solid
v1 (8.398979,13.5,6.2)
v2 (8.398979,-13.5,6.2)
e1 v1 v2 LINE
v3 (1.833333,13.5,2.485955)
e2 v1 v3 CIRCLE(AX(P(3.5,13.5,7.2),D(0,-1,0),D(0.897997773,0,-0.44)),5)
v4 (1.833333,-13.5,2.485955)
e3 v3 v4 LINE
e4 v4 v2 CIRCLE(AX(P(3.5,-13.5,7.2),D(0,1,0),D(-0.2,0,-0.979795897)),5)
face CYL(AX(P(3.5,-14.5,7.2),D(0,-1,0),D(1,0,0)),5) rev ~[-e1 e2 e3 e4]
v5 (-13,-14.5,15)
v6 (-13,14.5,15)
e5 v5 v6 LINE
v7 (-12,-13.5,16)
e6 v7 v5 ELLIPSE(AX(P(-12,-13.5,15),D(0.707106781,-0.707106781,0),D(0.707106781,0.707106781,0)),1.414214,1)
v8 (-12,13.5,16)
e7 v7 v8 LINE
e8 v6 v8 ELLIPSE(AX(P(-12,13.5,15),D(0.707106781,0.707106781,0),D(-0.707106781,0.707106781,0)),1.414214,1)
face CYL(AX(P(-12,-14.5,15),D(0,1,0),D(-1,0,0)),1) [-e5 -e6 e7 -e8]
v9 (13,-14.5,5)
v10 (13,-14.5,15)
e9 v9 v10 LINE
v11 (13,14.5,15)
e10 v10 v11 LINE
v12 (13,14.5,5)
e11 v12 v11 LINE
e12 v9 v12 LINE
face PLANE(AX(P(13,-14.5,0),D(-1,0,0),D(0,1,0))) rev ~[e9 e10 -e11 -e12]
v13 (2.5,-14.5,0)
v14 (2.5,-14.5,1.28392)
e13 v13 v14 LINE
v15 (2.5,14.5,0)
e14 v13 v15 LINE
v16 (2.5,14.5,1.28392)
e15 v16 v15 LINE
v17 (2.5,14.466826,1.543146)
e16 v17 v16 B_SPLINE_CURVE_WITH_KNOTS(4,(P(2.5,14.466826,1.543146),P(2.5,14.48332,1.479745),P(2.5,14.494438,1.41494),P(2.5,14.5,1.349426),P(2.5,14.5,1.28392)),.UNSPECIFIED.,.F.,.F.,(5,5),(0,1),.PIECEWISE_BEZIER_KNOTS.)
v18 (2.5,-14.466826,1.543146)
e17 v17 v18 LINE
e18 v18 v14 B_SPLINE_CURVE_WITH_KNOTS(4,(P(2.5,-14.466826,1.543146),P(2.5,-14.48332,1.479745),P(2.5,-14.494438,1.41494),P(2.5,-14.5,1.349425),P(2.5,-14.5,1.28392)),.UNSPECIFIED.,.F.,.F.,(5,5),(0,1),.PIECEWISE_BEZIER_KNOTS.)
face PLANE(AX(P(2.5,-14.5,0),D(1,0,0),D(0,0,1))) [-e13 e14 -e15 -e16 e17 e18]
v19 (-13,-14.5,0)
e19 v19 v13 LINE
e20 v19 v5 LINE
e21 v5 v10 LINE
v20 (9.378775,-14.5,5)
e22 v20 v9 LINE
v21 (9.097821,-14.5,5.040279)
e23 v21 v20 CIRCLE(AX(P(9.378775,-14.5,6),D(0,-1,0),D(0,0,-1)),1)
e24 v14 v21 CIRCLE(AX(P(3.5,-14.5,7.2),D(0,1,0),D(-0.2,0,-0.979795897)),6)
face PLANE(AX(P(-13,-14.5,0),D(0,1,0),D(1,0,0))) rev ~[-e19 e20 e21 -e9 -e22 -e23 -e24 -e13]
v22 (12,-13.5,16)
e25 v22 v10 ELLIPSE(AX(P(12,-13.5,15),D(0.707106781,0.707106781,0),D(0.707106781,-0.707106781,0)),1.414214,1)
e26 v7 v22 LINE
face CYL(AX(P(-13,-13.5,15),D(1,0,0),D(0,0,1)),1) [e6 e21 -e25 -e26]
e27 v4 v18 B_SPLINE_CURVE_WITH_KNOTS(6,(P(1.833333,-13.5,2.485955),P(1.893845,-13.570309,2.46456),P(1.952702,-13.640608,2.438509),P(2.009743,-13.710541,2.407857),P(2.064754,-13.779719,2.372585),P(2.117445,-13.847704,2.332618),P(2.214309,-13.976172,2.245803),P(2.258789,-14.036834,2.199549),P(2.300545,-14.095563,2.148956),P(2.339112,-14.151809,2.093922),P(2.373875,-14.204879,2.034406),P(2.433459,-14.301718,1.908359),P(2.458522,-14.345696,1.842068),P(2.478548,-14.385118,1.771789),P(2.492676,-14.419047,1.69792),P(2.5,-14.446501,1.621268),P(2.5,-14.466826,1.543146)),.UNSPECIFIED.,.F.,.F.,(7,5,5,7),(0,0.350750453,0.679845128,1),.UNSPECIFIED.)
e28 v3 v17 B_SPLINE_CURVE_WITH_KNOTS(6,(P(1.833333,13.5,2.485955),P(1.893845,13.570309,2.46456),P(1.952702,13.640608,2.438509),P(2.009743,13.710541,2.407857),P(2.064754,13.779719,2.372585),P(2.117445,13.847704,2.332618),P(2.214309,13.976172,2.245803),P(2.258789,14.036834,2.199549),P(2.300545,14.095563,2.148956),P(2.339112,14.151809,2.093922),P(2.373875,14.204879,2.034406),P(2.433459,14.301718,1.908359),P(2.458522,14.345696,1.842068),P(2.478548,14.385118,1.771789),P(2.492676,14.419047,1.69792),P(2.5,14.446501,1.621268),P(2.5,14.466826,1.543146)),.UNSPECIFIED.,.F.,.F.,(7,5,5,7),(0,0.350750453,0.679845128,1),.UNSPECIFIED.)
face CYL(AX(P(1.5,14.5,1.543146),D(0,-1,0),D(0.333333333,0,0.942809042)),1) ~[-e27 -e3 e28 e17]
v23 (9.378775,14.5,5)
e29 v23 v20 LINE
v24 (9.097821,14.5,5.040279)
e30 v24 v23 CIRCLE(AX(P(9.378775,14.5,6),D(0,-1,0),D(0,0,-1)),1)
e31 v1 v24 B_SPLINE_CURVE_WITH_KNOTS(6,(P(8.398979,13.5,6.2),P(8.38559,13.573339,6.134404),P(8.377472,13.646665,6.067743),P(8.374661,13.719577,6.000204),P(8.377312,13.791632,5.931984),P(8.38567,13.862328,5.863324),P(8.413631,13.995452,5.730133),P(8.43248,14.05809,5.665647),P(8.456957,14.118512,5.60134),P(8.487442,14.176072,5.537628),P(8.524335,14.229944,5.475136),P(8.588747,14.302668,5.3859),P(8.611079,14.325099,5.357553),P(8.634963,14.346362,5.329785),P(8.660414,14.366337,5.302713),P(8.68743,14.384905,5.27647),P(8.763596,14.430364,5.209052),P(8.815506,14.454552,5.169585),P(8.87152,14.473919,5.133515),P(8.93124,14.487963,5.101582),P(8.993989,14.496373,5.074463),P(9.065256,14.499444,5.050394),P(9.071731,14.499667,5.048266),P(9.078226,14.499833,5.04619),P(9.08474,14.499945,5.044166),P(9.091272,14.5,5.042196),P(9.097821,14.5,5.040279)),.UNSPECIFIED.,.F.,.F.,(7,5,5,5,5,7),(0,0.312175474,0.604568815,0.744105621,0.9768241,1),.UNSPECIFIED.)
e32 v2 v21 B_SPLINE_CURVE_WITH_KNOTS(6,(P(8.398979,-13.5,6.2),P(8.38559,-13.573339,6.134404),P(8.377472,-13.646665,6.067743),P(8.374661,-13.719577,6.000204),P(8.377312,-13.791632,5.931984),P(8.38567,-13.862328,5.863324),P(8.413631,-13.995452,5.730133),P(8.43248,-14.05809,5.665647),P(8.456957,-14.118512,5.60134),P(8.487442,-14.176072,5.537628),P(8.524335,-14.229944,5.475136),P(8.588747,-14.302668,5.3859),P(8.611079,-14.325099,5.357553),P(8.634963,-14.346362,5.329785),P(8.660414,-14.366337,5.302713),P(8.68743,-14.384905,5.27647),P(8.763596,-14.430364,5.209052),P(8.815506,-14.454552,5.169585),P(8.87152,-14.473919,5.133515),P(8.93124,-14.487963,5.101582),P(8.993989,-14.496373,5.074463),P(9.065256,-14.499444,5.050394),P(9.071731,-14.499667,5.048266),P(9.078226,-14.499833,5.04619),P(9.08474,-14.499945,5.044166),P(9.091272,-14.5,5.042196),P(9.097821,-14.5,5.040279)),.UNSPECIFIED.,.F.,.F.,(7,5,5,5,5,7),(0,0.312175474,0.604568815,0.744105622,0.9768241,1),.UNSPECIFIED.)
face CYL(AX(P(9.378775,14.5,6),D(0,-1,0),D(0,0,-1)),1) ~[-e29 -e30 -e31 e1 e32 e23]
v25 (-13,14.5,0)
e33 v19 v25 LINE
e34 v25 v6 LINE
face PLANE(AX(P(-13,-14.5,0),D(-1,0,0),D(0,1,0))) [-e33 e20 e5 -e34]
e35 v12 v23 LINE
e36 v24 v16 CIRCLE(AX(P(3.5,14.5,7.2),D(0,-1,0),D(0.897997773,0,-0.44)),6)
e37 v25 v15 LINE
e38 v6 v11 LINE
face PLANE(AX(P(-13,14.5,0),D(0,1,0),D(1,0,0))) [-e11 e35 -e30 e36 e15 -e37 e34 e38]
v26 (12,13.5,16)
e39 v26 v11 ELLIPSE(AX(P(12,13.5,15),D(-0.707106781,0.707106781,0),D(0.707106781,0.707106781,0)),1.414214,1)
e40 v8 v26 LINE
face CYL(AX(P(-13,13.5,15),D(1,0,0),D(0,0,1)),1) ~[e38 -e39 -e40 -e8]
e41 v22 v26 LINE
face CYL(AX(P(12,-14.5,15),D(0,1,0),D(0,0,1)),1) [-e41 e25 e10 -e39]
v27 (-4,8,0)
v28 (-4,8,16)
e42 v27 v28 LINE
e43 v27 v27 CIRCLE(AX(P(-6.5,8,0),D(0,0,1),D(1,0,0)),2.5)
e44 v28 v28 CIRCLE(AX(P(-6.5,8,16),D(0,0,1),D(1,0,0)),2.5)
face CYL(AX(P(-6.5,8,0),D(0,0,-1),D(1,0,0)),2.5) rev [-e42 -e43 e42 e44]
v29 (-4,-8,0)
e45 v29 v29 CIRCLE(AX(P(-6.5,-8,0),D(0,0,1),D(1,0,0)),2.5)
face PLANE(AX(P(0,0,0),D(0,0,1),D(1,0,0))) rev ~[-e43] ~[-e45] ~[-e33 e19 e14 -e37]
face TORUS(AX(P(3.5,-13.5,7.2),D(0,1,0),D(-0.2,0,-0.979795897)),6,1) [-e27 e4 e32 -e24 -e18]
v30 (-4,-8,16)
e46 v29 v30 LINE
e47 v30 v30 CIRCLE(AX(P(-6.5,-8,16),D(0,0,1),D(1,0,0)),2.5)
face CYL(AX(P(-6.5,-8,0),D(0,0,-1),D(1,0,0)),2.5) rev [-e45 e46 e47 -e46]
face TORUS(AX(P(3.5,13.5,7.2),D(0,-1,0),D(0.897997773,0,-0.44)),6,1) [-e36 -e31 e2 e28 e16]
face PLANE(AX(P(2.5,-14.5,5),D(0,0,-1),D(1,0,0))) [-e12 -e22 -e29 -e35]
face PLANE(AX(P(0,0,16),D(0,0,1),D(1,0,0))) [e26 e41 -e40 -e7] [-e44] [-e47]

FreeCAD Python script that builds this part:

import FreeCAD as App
import Part
import Sketcher


def edges_at(feature, points):
    """Names of the edges that pass closest to the given points."""
    edges = feature.Shape.Edges
    near = lambda p: min(range(len(edges)), key=lambda i: edges[i].distToShape(Part.Vertex(*p))[0])
    return sorted({f"Edge{near(p) + 1}" for p in points})

doc = App.newDocument("Part")
params = doc.addObject("Spreadsheet::Sheet", "Params")
for row, (alias, value) in enumerate([
    ("sketch1_diameter", "5 mm"),
    ("sketch1_width", "26 mm"),
    ("sketch1_height", "29 mm"),
    ("pad1_length", "16 mm"),
    ("sketch2_diameter", "10 mm"),
    ("pocket1_length", "60 mm"),
    ("sketch3_height", "5 mm"),
    ("sketch3_width", "10.5 mm"),
    ("pocket2_length", "60 mm"),
    ("fillet_radius", "1 mm"),
], start=1):
    params.set(f"A{row}", alias)
    params.set(f"B{row}", "=" + value)
    params.setAlias(f"B{row}", alias)

body = doc.addObject("PartDesign::Body", "Body")

# Sketch on XY plane
sketch1 = body.newObject("Sketcher::SketchObject", "Sketch")
sketch1.AttachmentSupport = (doc.getObject("XY_Plane"), [""])
sketch1.MapMode = "FlatFace"
sketch1.addGeometry([
    Part.LineSegment(App.Vector(-13, 14.5, 0), App.Vector(-13, -14.5, 0)),  # 0
    Part.LineSegment(App.Vector(-13, -14.5, 0), App.Vector(13, -14.5, 0)),  # 1
    Part.LineSegment(App.Vector(13, -14.5, 0), App.Vector(13, 14.5, 0)),  # 2
    Part.LineSegment(App.Vector(13, 14.5, 0), App.Vector(-13, 14.5, 0)),  # 3
    Part.Circle(App.Vector(-6.5, -8, 0), App.Vector(0, 0, 1), 2.5),  # 4
    Part.Circle(App.Vector(-6.5, 8, 0), App.Vector(0, 0, 1), 2.5),  # 5
], False)
sketch1.addConstraint([
    Sketcher.Constraint("Coincident", 0, 2, 1, 1),
    Sketcher.Constraint("Coincident", 1, 2, 2, 1),
    Sketcher.Constraint("Coincident", 2, 2, 3, 1),
    Sketcher.Constraint("Coincident", 3, 2, 0, 1),
    Sketcher.Constraint("Vertical", 0),
    Sketcher.Constraint("Horizontal", 1),
    Sketcher.Constraint("Vertical", 2),
    Sketcher.Constraint("Horizontal", 3),
    Sketcher.Constraint("Equal", 4, 5),
    Sketcher.Constraint("Symmetric", 0, 2, 2, 2, -1, 1),
    Sketcher.Constraint("Symmetric", 4, 3, 5, 3, -1),
    Sketcher.Constraint("Diameter", 4, 5.0),
    Sketcher.Constraint("DistanceX", 1, 1, 1, 2, 26.0),
    Sketcher.Constraint("DistanceY", 0, 2, 0, 1, 29.0),
    Sketcher.Constraint("DistanceY", 4, 3, -1, 1, 8.0),
    Sketcher.Constraint("DistanceX", 4, 3, -1, 1, 6.5),
])
sketch1.setExpression("Constraints[11]", "Params.sketch1_diameter")
sketch1.setExpression("Constraints[12]", "Params.sketch1_width")
sketch1.setExpression("Constraints[13]", "Params.sketch1_height")
pad1 = body.newObject("PartDesign::Pad", "Pad")
pad1.Profile = sketch1
pad1.setExpression("Length", "Params.pad1_length")

# Sketch on XZ plane
sketch2 = body.newObject("Sketcher::SketchObject", "Sketch001")
sketch2.AttachmentSupport = (doc.getObject("XZ_Plane"), [""])
sketch2.MapMode = "FlatFace"
sketch2.AttachmentOffset = App.Placement(App.Vector(0, 0, 14.5), App.Rotation())
sketch2.addGeometry(Part.Circle(App.Vector(4, 7, 0), App.Vector(0, 0, 1), 5), False)
sketch2.addConstraint([
    Sketcher.Constraint("Diameter", 0, 10.0),
    Sketcher.Constraint("DistanceX", -1, 1, 0, 3, 3.5),
    Sketcher.Constraint("DistanceY", -1, 1, 0, 3, 7.2),
])
sketch2.setExpression("Constraints[0]", "Params.sketch2_diameter")
pocket1 = body.newObject("PartDesign::Pocket", "Pocket")
pocket1.Profile = sketch2
pocket1.setExpression("Length", "Params.pocket1_length")

# Sketch on XZ plane
sketch3 = body.newObject("Sketcher::SketchObject", "Sketch002")
sketch3.AttachmentSupport = (doc.getObject("XZ_Plane"), [""])
sketch3.MapMode = "FlatFace"
sketch3.AttachmentOffset = App.Placement(App.Vector(0, 0, 14.5), App.Rotation())
sketch3.addGeometry([
    Part.LineSegment(App.Vector(2, 5, 0), App.Vector(2, 0, 0)),
    Part.LineSegment(App.Vector(2, 0, 0), App.Vector(13, 0, 0)),
    Part.LineSegment(App.Vector(13, 0, 0), App.Vector(13, 5, 0)),
    Part.LineSegment(App.Vector(13, 5, 0), App.Vector(2, 5, 0)),
], False)
sketch3.addConstraint([
    Sketcher.Constraint("Coincident", 0, 2, 1, 1),
    Sketcher.Constraint("Coincident", 1, 2, 2, 1),
    Sketcher.Constraint("Coincident", 2, 2, 3, 1),
    Sketcher.Constraint("Coincident", 3, 2, 0, 1),
    Sketcher.Constraint("Vertical", 0),
    Sketcher.Constraint("Horizontal", 1),
    Sketcher.Constraint("Vertical", 2),
    Sketcher.Constraint("Horizontal", 3),
    Sketcher.Constraint("PointOnObject", 0, 2, -1),
    Sketcher.Constraint("DistanceY", 0, 2, 0, 1, 5.0),
    Sketcher.Constraint("DistanceX", 1, 1, 1, 2, 10.5),
    Sketcher.Constraint("DistanceX", -1, 1, 1, 2, 13.0),
])
sketch3.setExpression("Constraints[9]", "Params.sketch3_height")
sketch3.setExpression("Constraints[10]", "Params.sketch3_width")
pocket2 = body.newObject("PartDesign::Pocket", "Pocket001")
pocket2.Profile = sketch3
pocket2.setExpression("Length", "Params.pocket2_length")
doc.recompute()

fillet = body.newObject("PartDesign::Fillet", "Fillet")
fillet.Base = (pocket2, edges_at(pocket2, [
    (0, -14.5, 16),
    (-13, 0, 16),
    (13, 0, 16),
    (0, 14.5, 16),
    (7.99, 0, 5),
    (2.5, 0, 2.301),
    (1.294, -14.5, 11.687),
    (1.294, 14.5, 11.687),
]))
fillet.setExpression("Radius", "Params.fillet_radius")

doc.recompute()
